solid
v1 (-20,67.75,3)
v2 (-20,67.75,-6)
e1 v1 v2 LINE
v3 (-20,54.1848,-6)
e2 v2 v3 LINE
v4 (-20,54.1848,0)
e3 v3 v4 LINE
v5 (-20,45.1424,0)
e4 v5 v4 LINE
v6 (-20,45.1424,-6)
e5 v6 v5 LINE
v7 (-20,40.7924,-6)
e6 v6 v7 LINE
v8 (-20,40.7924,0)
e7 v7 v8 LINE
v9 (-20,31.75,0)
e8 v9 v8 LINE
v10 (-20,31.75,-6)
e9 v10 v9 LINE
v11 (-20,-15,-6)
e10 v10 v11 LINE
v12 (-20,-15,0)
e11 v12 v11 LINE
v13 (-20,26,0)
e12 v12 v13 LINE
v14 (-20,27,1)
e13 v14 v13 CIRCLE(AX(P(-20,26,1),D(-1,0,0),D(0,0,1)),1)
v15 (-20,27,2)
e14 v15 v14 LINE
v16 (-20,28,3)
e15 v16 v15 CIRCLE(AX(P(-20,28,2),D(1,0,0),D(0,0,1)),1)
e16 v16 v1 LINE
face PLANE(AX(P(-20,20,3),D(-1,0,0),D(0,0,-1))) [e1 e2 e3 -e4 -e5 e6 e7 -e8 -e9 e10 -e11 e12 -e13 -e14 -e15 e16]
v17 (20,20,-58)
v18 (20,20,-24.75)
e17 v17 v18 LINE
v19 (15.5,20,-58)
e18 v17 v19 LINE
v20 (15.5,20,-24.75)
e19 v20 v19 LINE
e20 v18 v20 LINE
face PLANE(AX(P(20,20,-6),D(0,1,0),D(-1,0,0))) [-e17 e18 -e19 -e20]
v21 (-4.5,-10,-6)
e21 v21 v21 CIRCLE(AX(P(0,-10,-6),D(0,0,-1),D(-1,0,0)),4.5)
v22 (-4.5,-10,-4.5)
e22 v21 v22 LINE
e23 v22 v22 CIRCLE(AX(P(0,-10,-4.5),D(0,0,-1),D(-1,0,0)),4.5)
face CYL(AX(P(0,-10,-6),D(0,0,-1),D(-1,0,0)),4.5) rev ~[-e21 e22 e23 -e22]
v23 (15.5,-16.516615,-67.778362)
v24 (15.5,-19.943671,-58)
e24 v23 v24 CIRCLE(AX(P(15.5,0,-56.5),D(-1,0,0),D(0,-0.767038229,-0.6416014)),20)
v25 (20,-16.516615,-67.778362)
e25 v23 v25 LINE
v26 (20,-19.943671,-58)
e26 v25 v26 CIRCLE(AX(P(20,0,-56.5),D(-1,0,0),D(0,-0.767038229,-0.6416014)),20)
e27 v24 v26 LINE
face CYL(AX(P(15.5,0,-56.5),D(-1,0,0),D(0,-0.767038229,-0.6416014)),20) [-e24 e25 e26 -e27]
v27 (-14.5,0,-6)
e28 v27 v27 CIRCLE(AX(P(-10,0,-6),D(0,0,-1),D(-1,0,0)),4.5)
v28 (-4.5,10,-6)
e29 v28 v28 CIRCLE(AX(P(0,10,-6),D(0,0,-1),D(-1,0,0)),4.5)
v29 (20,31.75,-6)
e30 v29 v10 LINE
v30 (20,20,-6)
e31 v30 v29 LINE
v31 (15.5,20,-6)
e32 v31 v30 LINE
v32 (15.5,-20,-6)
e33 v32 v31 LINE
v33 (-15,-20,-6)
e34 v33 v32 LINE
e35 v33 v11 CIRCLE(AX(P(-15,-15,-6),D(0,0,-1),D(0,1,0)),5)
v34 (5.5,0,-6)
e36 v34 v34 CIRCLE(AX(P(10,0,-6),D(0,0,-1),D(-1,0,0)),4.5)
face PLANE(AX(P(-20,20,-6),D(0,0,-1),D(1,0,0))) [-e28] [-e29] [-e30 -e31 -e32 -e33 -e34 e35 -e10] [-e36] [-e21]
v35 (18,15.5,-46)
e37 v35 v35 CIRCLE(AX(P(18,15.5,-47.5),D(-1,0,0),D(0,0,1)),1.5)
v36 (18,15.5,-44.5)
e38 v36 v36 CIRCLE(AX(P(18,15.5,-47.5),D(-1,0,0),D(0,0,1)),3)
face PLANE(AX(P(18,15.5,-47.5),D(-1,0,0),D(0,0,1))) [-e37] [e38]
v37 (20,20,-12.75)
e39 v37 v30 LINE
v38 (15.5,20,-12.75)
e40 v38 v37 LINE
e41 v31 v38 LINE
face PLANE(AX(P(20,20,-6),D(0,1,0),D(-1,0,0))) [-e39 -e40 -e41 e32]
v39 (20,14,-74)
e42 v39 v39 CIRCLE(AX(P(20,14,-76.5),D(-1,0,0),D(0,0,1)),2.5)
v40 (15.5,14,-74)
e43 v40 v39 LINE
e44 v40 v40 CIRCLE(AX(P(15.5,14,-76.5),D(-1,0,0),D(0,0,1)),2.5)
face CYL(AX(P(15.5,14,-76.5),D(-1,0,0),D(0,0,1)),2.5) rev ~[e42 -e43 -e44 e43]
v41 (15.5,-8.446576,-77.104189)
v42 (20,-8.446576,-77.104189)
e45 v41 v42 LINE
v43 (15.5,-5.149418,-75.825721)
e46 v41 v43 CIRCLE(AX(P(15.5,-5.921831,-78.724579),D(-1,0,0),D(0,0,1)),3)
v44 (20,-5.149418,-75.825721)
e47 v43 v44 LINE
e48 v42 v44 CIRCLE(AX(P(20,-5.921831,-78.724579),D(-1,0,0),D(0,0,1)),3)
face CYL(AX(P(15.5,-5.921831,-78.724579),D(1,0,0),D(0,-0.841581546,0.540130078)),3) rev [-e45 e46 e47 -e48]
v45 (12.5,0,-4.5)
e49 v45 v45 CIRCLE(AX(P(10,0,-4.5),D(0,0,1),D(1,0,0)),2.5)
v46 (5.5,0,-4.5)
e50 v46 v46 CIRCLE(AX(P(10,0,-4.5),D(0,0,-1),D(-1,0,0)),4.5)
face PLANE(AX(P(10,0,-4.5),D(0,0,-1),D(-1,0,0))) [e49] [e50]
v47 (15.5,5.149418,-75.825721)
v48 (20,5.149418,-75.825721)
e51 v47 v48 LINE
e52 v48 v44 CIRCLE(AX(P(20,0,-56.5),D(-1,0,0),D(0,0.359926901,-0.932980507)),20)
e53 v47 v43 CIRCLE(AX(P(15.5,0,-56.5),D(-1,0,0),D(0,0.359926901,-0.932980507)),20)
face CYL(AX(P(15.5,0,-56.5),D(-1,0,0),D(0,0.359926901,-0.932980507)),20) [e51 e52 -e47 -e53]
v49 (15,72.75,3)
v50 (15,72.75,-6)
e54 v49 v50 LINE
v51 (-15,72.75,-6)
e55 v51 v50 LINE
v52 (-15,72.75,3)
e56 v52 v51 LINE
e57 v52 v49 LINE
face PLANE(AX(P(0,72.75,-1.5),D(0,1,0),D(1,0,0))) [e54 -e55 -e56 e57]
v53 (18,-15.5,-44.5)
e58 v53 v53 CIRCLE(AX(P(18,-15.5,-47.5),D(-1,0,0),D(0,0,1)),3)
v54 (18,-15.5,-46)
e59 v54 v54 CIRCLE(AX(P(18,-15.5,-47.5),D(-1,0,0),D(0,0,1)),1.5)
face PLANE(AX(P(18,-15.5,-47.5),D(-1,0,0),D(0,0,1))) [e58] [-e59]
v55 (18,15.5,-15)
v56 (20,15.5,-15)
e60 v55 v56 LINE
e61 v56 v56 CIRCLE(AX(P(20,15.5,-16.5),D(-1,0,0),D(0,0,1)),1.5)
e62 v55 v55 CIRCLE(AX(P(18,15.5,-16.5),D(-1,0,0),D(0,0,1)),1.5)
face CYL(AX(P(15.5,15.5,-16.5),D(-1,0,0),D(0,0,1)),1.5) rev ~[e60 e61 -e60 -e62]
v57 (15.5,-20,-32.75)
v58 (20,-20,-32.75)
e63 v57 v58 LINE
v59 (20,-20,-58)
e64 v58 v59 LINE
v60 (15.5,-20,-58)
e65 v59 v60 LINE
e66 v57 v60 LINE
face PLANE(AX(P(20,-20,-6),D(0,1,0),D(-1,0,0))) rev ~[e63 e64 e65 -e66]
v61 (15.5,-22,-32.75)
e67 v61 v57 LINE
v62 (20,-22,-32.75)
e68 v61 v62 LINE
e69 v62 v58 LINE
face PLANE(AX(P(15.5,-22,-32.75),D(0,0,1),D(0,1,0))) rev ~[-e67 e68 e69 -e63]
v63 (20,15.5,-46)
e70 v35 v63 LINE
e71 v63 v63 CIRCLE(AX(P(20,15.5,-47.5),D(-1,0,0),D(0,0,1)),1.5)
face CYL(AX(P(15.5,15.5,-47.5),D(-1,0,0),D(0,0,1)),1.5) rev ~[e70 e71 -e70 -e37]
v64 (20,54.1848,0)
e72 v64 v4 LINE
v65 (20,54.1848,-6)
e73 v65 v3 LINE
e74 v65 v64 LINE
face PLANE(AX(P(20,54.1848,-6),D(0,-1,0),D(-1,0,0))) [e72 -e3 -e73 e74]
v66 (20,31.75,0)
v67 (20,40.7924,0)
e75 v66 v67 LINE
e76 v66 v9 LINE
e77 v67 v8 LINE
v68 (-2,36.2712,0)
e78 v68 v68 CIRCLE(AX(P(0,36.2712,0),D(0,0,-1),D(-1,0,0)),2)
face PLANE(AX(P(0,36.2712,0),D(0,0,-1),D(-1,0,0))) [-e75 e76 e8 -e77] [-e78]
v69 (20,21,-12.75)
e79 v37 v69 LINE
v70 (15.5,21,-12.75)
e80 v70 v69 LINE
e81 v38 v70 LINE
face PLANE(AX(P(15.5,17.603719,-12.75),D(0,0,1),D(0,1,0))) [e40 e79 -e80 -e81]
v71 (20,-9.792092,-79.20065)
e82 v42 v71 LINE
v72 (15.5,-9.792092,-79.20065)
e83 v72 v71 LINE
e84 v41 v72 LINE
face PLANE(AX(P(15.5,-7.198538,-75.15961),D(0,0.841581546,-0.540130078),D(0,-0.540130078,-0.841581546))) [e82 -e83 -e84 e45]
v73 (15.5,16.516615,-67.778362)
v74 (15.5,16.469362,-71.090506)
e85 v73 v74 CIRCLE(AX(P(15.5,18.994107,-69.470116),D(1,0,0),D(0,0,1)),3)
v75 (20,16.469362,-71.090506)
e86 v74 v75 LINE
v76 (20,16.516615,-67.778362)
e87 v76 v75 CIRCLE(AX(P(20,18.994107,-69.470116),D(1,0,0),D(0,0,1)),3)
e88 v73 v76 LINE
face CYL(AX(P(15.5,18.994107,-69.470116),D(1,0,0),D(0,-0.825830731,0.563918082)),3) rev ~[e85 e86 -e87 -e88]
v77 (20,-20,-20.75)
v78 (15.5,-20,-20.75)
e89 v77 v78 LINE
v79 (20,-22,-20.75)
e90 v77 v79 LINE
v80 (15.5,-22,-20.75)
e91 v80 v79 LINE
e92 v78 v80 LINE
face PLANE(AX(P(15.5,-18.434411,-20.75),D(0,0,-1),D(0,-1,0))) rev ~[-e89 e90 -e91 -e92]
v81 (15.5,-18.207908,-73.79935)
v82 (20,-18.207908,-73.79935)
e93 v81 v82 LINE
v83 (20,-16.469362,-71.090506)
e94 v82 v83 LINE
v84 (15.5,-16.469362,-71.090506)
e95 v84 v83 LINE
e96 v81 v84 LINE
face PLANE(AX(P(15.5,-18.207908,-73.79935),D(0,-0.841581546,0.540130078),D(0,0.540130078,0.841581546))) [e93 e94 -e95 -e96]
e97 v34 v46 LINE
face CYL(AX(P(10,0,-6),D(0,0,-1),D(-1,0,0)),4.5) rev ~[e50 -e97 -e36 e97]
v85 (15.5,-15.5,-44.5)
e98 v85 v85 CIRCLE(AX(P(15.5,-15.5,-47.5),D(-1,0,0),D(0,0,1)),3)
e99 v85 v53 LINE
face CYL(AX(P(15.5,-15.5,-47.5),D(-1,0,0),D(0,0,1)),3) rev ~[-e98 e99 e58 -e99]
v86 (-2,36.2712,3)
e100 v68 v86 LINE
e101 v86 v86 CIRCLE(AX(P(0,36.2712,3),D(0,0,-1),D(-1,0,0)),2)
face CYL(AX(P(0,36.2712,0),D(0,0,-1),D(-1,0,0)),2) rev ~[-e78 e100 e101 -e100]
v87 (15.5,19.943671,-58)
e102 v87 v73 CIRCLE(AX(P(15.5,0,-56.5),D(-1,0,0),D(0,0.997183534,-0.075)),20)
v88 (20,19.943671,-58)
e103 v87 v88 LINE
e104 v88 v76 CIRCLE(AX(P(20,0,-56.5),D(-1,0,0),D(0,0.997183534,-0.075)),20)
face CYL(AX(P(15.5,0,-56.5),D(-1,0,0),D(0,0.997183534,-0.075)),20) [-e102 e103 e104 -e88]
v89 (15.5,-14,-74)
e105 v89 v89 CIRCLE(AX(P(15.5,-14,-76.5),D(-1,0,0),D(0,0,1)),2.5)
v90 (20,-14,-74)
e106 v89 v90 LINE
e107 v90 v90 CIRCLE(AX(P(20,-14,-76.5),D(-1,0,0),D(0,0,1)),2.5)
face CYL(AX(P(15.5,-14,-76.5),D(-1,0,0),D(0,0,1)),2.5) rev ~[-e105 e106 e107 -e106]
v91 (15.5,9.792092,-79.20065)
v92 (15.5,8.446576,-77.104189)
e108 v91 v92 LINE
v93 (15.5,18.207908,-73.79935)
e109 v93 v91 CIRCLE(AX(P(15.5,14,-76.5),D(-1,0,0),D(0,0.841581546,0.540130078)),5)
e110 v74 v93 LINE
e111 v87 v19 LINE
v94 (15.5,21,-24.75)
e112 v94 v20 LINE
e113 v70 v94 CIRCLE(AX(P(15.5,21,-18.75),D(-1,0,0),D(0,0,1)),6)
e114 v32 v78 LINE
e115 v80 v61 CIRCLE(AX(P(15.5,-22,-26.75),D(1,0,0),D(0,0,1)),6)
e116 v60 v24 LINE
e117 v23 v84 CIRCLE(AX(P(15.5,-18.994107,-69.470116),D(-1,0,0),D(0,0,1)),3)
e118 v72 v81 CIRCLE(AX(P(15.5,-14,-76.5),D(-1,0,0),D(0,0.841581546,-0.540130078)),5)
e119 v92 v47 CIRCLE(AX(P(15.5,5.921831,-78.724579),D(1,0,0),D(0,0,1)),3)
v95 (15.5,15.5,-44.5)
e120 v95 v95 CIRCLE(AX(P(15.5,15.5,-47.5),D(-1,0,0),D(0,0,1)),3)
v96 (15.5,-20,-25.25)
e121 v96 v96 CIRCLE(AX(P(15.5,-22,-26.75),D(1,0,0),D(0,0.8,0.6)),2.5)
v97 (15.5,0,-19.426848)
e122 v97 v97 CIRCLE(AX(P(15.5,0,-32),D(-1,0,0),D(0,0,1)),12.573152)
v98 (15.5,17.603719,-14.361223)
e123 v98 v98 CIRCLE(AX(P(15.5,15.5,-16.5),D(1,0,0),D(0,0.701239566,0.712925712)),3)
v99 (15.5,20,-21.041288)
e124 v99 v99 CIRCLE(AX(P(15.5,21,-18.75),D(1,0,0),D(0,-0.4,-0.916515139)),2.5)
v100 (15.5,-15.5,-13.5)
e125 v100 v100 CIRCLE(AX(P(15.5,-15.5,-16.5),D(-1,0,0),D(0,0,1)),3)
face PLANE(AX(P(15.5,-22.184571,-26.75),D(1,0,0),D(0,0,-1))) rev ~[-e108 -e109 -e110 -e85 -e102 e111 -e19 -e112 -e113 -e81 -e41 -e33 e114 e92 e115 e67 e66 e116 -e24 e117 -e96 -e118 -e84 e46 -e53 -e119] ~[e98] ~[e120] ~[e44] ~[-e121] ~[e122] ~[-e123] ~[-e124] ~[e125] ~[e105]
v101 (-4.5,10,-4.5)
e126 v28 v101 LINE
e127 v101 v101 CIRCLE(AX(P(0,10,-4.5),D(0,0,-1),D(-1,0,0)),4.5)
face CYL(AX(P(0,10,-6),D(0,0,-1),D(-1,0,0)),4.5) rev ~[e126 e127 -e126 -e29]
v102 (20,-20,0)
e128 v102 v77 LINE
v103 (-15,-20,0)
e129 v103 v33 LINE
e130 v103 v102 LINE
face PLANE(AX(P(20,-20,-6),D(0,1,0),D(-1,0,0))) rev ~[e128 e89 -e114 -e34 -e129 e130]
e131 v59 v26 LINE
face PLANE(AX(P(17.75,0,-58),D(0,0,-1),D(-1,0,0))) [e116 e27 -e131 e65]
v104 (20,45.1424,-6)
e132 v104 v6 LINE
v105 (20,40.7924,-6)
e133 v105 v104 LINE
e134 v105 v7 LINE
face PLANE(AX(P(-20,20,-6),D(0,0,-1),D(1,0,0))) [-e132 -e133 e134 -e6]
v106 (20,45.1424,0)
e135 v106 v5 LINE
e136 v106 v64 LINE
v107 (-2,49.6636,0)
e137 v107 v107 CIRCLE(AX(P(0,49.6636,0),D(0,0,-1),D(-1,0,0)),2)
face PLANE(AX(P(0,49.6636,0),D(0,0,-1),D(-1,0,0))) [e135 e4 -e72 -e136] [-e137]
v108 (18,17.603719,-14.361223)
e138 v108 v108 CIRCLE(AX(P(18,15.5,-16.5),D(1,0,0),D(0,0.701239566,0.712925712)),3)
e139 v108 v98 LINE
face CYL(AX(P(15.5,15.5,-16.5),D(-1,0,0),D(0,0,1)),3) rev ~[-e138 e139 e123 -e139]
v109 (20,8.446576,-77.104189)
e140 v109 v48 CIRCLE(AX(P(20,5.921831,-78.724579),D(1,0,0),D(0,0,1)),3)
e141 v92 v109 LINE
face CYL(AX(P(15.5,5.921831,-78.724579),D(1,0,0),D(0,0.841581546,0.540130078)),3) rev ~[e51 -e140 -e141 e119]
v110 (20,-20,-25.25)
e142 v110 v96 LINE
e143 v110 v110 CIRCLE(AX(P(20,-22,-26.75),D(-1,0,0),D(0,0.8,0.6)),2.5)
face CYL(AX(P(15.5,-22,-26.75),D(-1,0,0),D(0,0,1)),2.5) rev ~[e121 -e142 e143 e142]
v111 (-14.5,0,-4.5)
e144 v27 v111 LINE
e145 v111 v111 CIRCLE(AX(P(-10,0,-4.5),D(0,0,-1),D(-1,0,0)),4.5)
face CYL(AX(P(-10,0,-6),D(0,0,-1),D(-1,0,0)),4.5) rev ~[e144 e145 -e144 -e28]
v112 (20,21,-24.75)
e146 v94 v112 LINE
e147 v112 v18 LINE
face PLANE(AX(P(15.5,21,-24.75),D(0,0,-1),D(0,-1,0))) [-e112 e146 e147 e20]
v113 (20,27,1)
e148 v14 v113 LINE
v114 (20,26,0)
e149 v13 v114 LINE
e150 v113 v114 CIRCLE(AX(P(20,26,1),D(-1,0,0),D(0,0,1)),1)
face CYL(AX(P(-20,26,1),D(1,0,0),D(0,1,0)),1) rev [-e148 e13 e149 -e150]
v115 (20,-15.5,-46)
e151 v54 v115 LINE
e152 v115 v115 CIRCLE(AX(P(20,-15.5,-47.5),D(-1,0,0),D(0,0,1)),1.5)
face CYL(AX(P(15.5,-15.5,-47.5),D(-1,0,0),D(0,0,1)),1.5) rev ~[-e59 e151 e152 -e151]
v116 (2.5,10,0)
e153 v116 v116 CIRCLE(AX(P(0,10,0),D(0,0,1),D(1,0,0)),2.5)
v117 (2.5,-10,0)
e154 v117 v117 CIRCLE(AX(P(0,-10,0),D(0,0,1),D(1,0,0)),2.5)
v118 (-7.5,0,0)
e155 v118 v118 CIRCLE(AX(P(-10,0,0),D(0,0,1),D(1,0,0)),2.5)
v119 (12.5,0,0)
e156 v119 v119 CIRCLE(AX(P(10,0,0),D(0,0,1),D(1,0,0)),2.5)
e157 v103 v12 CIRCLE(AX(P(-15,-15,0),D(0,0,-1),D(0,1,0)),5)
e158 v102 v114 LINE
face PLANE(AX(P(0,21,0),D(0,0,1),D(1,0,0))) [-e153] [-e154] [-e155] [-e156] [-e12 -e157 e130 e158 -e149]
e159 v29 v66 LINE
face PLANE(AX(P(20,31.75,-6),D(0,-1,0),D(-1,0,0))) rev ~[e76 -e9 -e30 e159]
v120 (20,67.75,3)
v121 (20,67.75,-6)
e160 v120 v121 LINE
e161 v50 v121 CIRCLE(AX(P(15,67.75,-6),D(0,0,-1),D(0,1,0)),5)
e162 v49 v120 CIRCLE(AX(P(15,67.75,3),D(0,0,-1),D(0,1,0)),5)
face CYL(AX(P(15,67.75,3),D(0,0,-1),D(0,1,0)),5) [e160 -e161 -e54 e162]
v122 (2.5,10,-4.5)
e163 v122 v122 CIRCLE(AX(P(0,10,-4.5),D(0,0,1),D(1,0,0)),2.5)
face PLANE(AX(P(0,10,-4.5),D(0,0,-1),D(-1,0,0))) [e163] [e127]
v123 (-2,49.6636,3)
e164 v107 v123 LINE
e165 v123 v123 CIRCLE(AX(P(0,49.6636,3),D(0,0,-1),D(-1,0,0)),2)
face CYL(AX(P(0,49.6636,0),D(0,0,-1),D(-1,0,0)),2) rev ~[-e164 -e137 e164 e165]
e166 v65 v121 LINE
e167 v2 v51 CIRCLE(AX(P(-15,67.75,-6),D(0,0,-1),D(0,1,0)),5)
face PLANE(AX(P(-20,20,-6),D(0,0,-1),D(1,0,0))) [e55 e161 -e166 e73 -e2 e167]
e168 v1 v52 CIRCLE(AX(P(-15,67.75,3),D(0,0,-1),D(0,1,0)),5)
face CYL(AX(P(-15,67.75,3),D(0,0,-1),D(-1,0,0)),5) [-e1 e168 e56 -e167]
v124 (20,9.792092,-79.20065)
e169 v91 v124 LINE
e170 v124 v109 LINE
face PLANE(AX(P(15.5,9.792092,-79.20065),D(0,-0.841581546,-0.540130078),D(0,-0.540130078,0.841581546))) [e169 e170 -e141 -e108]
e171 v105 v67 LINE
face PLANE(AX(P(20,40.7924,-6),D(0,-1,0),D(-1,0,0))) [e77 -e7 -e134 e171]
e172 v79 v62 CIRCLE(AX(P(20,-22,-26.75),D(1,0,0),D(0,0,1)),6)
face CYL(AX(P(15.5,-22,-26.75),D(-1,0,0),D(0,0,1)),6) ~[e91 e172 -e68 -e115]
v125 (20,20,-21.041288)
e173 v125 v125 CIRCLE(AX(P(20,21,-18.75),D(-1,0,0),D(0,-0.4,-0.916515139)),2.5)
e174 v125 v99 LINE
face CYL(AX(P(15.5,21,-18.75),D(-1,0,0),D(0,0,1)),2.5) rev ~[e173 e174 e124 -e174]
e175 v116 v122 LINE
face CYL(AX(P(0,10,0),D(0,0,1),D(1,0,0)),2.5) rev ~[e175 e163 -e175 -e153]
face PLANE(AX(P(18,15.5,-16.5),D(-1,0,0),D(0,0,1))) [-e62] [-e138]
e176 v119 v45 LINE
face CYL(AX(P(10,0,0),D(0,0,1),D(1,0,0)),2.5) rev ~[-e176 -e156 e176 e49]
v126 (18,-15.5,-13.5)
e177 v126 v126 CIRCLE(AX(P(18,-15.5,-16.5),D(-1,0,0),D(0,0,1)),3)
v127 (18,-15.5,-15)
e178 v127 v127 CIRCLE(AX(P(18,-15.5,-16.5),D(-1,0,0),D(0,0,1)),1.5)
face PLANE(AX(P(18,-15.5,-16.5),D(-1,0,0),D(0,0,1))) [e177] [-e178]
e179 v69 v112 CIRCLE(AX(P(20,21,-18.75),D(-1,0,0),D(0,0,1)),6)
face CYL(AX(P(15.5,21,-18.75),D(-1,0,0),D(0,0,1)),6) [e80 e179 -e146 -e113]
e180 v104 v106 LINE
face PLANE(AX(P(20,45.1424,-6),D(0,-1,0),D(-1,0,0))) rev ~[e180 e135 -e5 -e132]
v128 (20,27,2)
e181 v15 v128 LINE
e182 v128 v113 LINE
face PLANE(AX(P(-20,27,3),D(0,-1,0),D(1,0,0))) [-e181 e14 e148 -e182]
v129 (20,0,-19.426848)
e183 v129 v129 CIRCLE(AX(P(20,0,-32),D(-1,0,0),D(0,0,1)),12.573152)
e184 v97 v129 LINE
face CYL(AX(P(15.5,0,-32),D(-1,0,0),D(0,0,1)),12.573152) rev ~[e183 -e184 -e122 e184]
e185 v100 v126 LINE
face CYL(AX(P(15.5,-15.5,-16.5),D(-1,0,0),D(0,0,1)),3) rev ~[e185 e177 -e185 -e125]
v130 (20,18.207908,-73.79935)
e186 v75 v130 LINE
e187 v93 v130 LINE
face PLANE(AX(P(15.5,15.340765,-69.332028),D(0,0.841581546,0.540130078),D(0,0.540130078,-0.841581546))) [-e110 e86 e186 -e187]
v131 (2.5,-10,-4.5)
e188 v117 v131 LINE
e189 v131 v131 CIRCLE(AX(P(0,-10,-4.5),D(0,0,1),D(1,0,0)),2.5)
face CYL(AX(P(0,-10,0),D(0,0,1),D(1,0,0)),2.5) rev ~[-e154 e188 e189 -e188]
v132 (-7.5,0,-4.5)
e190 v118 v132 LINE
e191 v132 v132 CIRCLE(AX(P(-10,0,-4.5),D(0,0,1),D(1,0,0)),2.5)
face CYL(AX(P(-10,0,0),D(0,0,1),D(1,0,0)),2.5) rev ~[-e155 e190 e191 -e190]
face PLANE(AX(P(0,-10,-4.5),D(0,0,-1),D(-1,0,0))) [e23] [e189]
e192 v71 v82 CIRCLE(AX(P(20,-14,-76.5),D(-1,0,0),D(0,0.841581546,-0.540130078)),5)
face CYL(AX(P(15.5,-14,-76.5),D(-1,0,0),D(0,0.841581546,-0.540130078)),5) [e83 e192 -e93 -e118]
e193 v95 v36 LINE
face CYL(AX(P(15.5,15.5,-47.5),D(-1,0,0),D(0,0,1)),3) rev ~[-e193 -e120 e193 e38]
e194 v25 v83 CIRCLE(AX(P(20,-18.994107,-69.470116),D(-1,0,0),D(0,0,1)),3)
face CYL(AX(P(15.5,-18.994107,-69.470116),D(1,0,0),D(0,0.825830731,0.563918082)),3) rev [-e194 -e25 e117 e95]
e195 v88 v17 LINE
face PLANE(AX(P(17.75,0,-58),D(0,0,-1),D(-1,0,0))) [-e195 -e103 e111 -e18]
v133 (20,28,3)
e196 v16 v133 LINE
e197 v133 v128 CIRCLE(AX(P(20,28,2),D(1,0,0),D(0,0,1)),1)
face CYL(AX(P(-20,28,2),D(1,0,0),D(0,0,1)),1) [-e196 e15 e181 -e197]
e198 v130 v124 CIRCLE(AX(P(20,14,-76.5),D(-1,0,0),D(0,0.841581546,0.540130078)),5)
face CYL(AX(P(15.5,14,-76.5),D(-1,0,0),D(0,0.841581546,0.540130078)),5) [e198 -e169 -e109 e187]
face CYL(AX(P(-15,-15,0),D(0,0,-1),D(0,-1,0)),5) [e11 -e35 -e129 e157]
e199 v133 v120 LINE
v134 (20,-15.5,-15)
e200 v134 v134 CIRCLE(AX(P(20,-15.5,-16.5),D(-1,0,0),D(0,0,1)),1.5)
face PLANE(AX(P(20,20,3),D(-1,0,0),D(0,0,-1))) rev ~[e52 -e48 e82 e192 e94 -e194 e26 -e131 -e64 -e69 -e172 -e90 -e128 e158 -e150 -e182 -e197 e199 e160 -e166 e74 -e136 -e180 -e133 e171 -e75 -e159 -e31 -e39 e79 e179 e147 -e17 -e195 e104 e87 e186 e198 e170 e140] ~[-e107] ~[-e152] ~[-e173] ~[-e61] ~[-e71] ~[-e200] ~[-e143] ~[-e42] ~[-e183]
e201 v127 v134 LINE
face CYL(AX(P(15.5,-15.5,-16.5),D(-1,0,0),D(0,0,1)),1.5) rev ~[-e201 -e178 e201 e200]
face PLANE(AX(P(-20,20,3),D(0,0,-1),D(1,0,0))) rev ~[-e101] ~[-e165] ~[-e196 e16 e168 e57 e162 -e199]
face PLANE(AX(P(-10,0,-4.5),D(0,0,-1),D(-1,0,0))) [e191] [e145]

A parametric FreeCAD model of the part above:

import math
import FreeCAD as App
import Part
import Sketcher
from FreeCAD import Vector
Q = App.Units.Quantity


def edges_at(feature, points):
    """Names of the edges that pass closest to the given points."""
    edges = feature.Shape.Edges
    near = lambda p: min(range(len(edges)), key=lambda i: edges[i].distToShape(Part.Vertex(*p))[0])
    return sorted({f"Edge{near(p) + 1}" for p in points})

doc = App.newDocument("Part")
params = doc.addObject("Spreadsheet::Sheet", "Params")
for row, (alias, value) in enumerate([
    ("sketch1_diameter", "5 mm"),
    ("sketch1_width", "40 mm"),
    ("pad1_length", "6 mm"),
    ("sketch2_height", "40 mm"),
    ("sketch2_width", "4.5 mm"),
    ("pad2_length", "52 mm"),
    ("sketch4_diameter", "3 mm"),
    ("sketch5_diameter", "3 mm"),
    ("sketch6_diameter", "3 mm"),
    ("sketch7_diameter", "3 mm"),
    ("sketch8_diameter", "9 mm"),
    ("pocket6_length", "1.5 mm"),
    ("sketch9_diameter", "6 mm"),
    ("pocket7_length", "2.5 mm"),
    ("fillet_radius", "5 mm"),
    ("sketch10_diameter", "5 mm"),
    ("sketch10_radius", "20 mm"),
    ("sketch10_radius2", "5 mm"),
    ("pad3_length", "4.5 mm"),
    ("fillet2_radius", "3 mm"),
    ("sketch11_diameter", "5 mm"),
    ("sketch11_radius", "6 mm"),
    ("pad4_length", "4.5 mm"),
    ("sketch12_diameter", "5 mm"),
    ("pocket8_length", "4.5 mm"),
    ("sketch13_diameter", "6 mm"),
    ("pocket9_length", "2.5 mm"),
    ("sketch14_width", "40 mm"),
    ("sketch14_height", "9 mm"),
    ("pad5_length", "52.75 mm"),
    ("sketch15_width", "40 mm"),
    ("sketch15_height", "2 mm"),
    ("pocket10_length", "3 mm"),
    ("sketch16_width", "40 mm"),
    ("sketch16_height", "5 mm"),
    ("pocket11_length", "3 mm"),
    ("fillet3_radius", "1 mm"),
    ("fillet4_radius", "5 mm"),
    ("sketch17_width", "40 mm"),
    ("pocket12_length", "6 mm"),
    ("sketch18_diameter", "4 mm"),
], start=1):
    params.set(f"A{row}", alias)
    params.set(f"B{row}", "=" + value)
    params.setAlias(f"B{row}", alias)

body = doc.addObject("PartDesign::Body", "Body")

# Sketch on XY plane
sketch1 = doc.addObject("Sketcher::SketchObject", "Sketch")
body.addObject(sketch1)
sketch1.AttachmentSupport = (doc.XY_Plane, [""])
sketch1.MapMode = "FlatFace"
sketch1.addGeometry([
    Part.LineSegment(Vector(-20, 20, 0), Vector(-20, -20, 0)),  # 0
    Part.LineSegment(Vector(-20, -20, 0), Vector(20, -20, 0)),  # 1
    Part.LineSegment(Vector(20, -20, 0), Vector(20, 20, 0)),  # 2
    Part.LineSegment(Vector(20, 20, 0), Vector(-20, 20, 0)),  # 3
    Part.Circle(Vector(0, -10, 0), Vector(0, 0, 1), 2.5),  # 4
    Part.Circle(Vector(-10, 0, 0), Vector(0, 0, 1), 2.5),  # 5
    Part.Circle(Vector(10, 0, 0), Vector(0, 0, 1), 2.5),  # 6
    Part.Circle(Vector(0, 10, 0), Vector(0, 0, 1), 2.5),  # 7
], False)
sketch1.addConstraint([
    Sketcher.Constraint("Coincident", 0, 2, 1, 1),
    Sketcher.Constraint("Coincident", 1, 2, 2, 1),
    Sketcher.Constraint("Coincident", 2, 2, 3, 1),
    Sketcher.Constraint("Coincident", 3, 2, 0, 1),
    Sketcher.Constraint("Vertical", 0),
    Sketcher.Constraint("Horizontal", 1),
    Sketcher.Constraint("Vertical", 2),
    Sketcher.Constraint("Horizontal", 3),
    Sketcher.Constraint("Equal", 4, 5),
    Sketcher.Constraint("Equal", 5, 6),
    Sketcher.Constraint("Equal", 6, 7),
    Sketcher.Constraint("Symmetric", 5, 3, 6, 3, -1, 1),
    Sketcher.Constraint("Symmetric", 4, 3, 7, 3, -1, 1),
    Sketcher.Constraint("Symmetric", 0, 2, 2, 2, -1, 1),
    Sketcher.Constraint("PointOnObject", 4, 3, -2),
    Sketcher.Constraint("PointOnObject", 5, 3, -1),
    Sketcher.Constraint("Equal", 3, 0),
    Sketcher.Constraint("Diameter", 4, Q("5 mm")),
    Sketcher.Constraint("DistanceX", 1, 1, 1, 2, Q("40 mm")),
    Sketcher.Constraint("DistanceY", 4, 3, -1, 1, Q("10 mm")),
    Sketcher.Constraint("DistanceX", 5, 3, -1, 1, Q("10 mm")),
])
sketch1.setExpression("Constraints[17]", "Params.sketch1_diameter")
sketch1.setExpression("Constraints[18]", "Params.sketch1_width")
pad1 = doc.addObject("PartDesign::Pad", "Pad")
body.addObject(pad1)
pad1.Profile = sketch1
pad1.setExpression("Length", "Params.pad1_length")
pad1.Reversed = True

# Sketch on XY plane
sketch2 = doc.addObject("Sketcher::SketchObject", "Sketch001")
body.addObject(sketch2)
sketch2.AttachmentSupport = (doc.XY_Plane, [""])
sketch2.MapMode = "FlatFace"
sketch2.AttachmentOffset = App.Placement(Vector(0, 0, -6), App.Rotation())
sketch2.addGeometry([
    Part.LineSegment(Vector(20, 20, 0), Vector(20, -20, 0)),
    Part.LineSegment(Vector(20, -20, 0), Vector(15.5, -20, 0)),
    Part.LineSegment(Vector(15.5, -20, 0), Vector(15.5, 20, 0)),
    Part.LineSegment(Vector(15.5, 20, 0), Vector(20, 20, 0)),
], False)
sketch2.addConstraint([
    Sketcher.Constraint("Coincident", 0, 2, 1, 1),
    Sketcher.Constraint("Coincident", 1, 2, 2, 1),
    Sketcher.Constraint("Coincident", 2, 2, 3, 1),
    Sketcher.Constraint("Coincident", 3, 2, 0, 1),
    Sketcher.Constraint("Vertical", 0),
    Sketcher.Constraint("Horizontal", 1),
    Sketcher.Constraint("Vertical", 2),
    Sketcher.Constraint("Horizontal", 3),
    Sketcher.Constraint("DistanceY", 0, 2, 0, 1, Q("40 mm")),
    Sketcher.Constraint("DistanceX", 1, 2, 1, 1, Q("4.5 mm")),
    Sketcher.Constraint("DistanceX", -1, 1, 0, 2, Q("20 mm")),
    Sketcher.Constraint("DistanceY", 0, 2, -1, 1, Q("20 mm")),
])
sketch2.setExpression("Constraints[8]", "Params.sketch2_height")
sketch2.setExpression("Constraints[9]", "Params.sketch2_width")
pad2 = doc.addObject("PartDesign::Pad", "Pad001")
body.addObject(pad2)
pad2.Profile = sketch2
pad2.setExpression("Length", "Params.pad2_length")
pad2.Reversed = True

# Sketch on YZ plane
sketch3 = doc.addObject("Sketcher::SketchObject", "Sketch002")
body.addObject(sketch3)
sketch3.AttachmentSupport = (doc.YZ_Plane, [""])
sketch3.MapMode = "FlatFace"
sketch3.AttachmentOffset = App.Placement(Vector(0, 0, 15.5), App.Rotation())
sketch3.addGeometry(Part.Circle(Vector(0, -32, 0), Vector(0, 0, 1), 13), False)
sketch3.addConstraint([
    Sketcher.Constraint("PointOnObject", 0, 3, -2),
    Sketcher.Constraint("DistanceY", 0, 3, -1, 1, Q("32 mm")),
    Sketcher.Constraint("Diameter", 0, Q("25.146303 mm")),
])
pocket1 = doc.addObject("PartDesign::Pocket", "Pocket")
body.addObject(pocket1)
pocket1.Profile = sketch3
pocket1.Type = "UpToFirst"
pocket1.Reversed = True

# Sketch on YZ plane
sketch4 = doc.addObject("Sketcher::SketchObject", "Sketch003")
body.addObject(sketch4)
sketch4.AttachmentSupport = (doc.YZ_Plane, [""])
sketch4.MapMode = "FlatFace"
sketch4.AttachmentOffset = App.Placement(Vector(0, 0, 15.5), App.Rotation())
sketch4.addGeometry(Part.Circle(Vector(15.5, -16.5, 0), Vector(0, 0, 1), 1.5), False)
sketch4.addConstraint([
    Sketcher.Constraint("Diameter", 0, Q("3 mm")),
    Sketcher.Constraint("DistanceX", -1, 1, 0, 3, Q("15.5 mm")),
    Sketcher.Constraint("DistanceY", 0, 3, -1, 1, Q("16.5 mm")),
])
sketch4.setExpression("Constraints[0]", "Params.sketch4_diameter")
pocket2 = doc.addObject("PartDesign::Pocket", "Pocket001")
body.addObject(pocket2)
pocket2.Profile = sketch4
pocket2.Type = "UpToFirst"
pocket2.Reversed = True

# Sketch on YZ plane
sketch5 = doc.addObject("Sketcher::SketchObject", "Sketch004")
body.addObject(sketch5)
sketch5.AttachmentSupport = (doc.YZ_Plane, [""])
sketch5.MapMode = "FlatFace"
sketch5.AttachmentOffset = App.Placement(Vector(0, 0, 15.5), App.Rotation())
sketch5.addGeometry(Part.Circle(Vector(-15.5, -16.5, 0), Vector(0, 0, 1), 1.5), False)
sketch5.addConstraint([
    Sketcher.Constraint("Diameter", 0, Q("3 mm")),
    Sketcher.Constraint("DistanceX", 0, 3, -1, 1, Q("15.5 mm")),
    Sketcher.Constraint("DistanceY", 0, 3, -1, 1, Q("16.5 mm")),
])
sketch5.setExpression("Constraints[0]", "Params.sketch5_diameter")
pocket3 = doc.addObject("PartDesign::Pocket", "Pocket002")
body.addObject(pocket3)
pocket3.Profile = sketch5
pocket3.Type = "UpToFirst"
pocket3.Reversed = True

# Sketch on YZ plane
sketch6 = doc.addObject("Sketcher::SketchObject", "Sketch005")
body.addObject(sketch6)
sketch6.AttachmentSupport = (doc.YZ_Plane, [""])
sketch6.MapMode = "FlatFace"
sketch6.AttachmentOffset = App.Placement(Vector(0, 0, 15.5), App.Rotation())
sketch6.addGeometry(Part.Circle(Vector(-15.5, -47.5, 0), Vector(0, 0, 1), 1.5), False)
sketch6.addConstraint([
    Sketcher.Constraint("Diameter", 0, Q("3 mm")),
    Sketcher.Constraint("DistanceX", 0, 3, -1, 1, Q("15.5 mm")),
    Sketcher.Constraint("DistanceY", 0, 3, -1, 1, Q("47.5 mm")),
])
sketch6.setExpression("Constraints[0]", "Params.sketch6_diameter")
pocket4 = doc.addObject("PartDesign::Pocket", "Pocket003")
body.addObject(pocket4)
pocket4.Profile = sketch6
pocket4.Type = "UpToFirst"
pocket4.Reversed = True

# Sketch on YZ plane
sketch7 = doc.addObject("Sketcher::SketchObject", "Sketch006")
body.addObject(sketch7)
sketch7.AttachmentSupport = (doc.YZ_Plane, [""])
sketch7.MapMode = "FlatFace"
sketch7.AttachmentOffset = App.Placement(Vector(0, 0, 15.5), App.Rotation())
sketch7.addGeometry(Part.Circle(Vector(15.5, -47.5, 0), Vector(0, 0, 1), 1.5), False)
sketch7.addConstraint([
    Sketcher.Constraint("Diameter", 0, Q("3 mm")),
    Sketcher.Constraint("DistanceX", -1, 1, 0, 3, Q("15.5 mm")),
    Sketcher.Constraint("DistanceY", 0, 3, -1, 1, Q("47.5 mm")),
])
sketch7.setExpression("Constraints[0]", "Params.sketch7_diameter")
pocket5 = doc.addObject("PartDesign::Pocket", "Pocket004")
body.addObject(pocket5)
pocket5.Profile = sketch7
pocket5.Type = "UpToFirst"
pocket5.Reversed = True

# Sketch on XY plane
sketch8 = doc.addObject("Sketcher::SketchObject", "Sketch007")
body.addObject(sketch8)
sketch8.AttachmentSupport = (doc.XY_Plane, [""])
sketch8.MapMode = "FlatFace"
sketch8.AttachmentOffset = App.Placement(Vector(0, 0, -6), App.Rotation())
sketch8.addGeometry([
    Part.Circle(Vector(0, 10, 0), Vector(0, 0, 1), 4.5),
    Part.Circle(Vector(-10, 0, 0), Vector(0, 0, 1), 4.5),
    Part.Circle(Vector(0, -10, 0), Vector(0, 0, 1), 4.5),
    Part.Circle(Vector(10, 0, 0), Vector(0, 0, 1), 4.5),
], False)
sketch8.addConstraint([
    Sketcher.Constraint("Equal", 0, 1),
    Sketcher.Constraint("Equal", 1, 2),
    Sketcher.Constraint("Equal", 2, 3),
    Sketcher.Constraint("Symmetric", 0, 3, 2, 3, -1, 1),
    Sketcher.Constraint("Symmetric", 1, 3, 3, 3, -1, 1),
    Sketcher.Constraint("PointOnObject", 0, 3, -2),
    Sketcher.Constraint("PointOnObject", 1, 3, -1),
    Sketcher.Constraint("Diameter", 0, Q("9 mm")),
    Sketcher.Constraint("DistanceY", -1, 1, 0, 3, Q("10 mm")),
    Sketcher.Constraint("DistanceX", 1, 3, -1, 1, Q("10 mm")),
])
sketch8.setExpression("Constraints[7]", "Params.sketch8_diameter")
pocket6 = doc.addObject("PartDesign::Pocket", "Pocket005")
body.addObject(pocket6)
pocket6.Profile = sketch8
pocket6.setExpression("Length", "Params.pocket6_length")
pocket6.Reversed = True

# Sketch on YZ plane
sketch9 = doc.addObject("Sketcher::SketchObject", "Sketch008")
body.addObject(sketch9)
sketch9.AttachmentSupport = (doc.YZ_Plane, [""])
sketch9.MapMode = "FlatFace"
sketch9.AttachmentOffset = App.Placement(Vector(0, 0, 15.5), App.Rotation())
sketch9.addGeometry([
    Part.Circle(Vector(15.5, -16.5, 0), Vector(0, 0, 1), 3),
    Part.Circle(Vector(15.5, -47.5, 0), Vector(0, 0, 1), 3),
    Part.Circle(Vector(-15.5, -47.5, 0), Vector(0, 0, 1), 3),
    Part.Circle(Vector(-15.5, -16.5, 0), Vector(0, 0, 1), 3),
], False)
sketch9.addConstraint([
    Sketcher.Constraint("Equal", 0, 1),
    Sketcher.Constraint("Equal", 1, 2),
    Sketcher.Constraint("Equal", 2, 3),
    Sketcher.Constraint("Symmetric", 1, 3, 2, 3, -2),
    Sketcher.Constraint("Symmetric", 0, 3, 3, 3, -2),
    Sketcher.Constraint("Vertical", 0, 3, 1, 3),
    Sketcher.Constraint("Diameter", 0, Q("6 mm")),
    Sketcher.Constraint("DistanceY", 1, 3, 0, 3, Q("31 mm")),
    Sketcher.Constraint("DistanceX", 2, 3, 1, 3, Q("31 mm")),
    Sketcher.Constraint("DistanceY", 0, 3, -1, 1, Q("16.5 mm")),
])
sketch9.setExpression("Constraints[6]", "Params.sketch9_diameter")
pocket7 = doc.addObject("PartDesign::Pocket", "Pocket006")
body.addObject(pocket7)
pocket7.Profile = sketch9
pocket7.setExpression("Length", "Params.pocket7_length")
pocket7.Reversed = True
doc.recompute()

fillet = doc.addObject("PartDesign::Fillet", "Fillet")
body.addObject(fillet)
fillet.Base = (pocket7, edges_at(pocket7, [(-20, -20, -3)]))
fillet.setExpression("Radius", "Params.fillet_radius")

# Sketch on YZ plane
sketch10 = doc.addObject("Sketcher::SketchObject", "Sketch009")
body.addObject(sketch10)
sketch10.AttachmentSupport = (doc.YZ_Plane, [""])
sketch10.MapMode = "FlatFace"
sketch10.AttachmentOffset = App.Placement(Vector(0, 0, 15.5), App.Rotation())
sketch10.addGeometry([
    Part.LineSegment(Vector(-19.9, -58, 0), Vector(19.9, -58, 0)),  # 0
    Part.ArcOfCircle(Part.Circle(Vector(0, -56.5, 0), Vector(0, 0, 1), 20), math.radians(-40), math.radians(-4)),  # 1
    Part.LineSegment(Vector(15.3, -69.3, 0), Vector(18.2, -73.8, 0)),  # 2
    Part.ArcOfCircle(Part.Circle(Vector(14, -76.5, 0), Vector(0, 0, 1), 5), math.radians(-147), math.radians(33)),  # 3
    Part.LineSegment(Vector(9.8, -79.2, 0), Vector(7.2, -75.2, 0)),  # 4
    Part.ArcOfCircle(Part.Circle(Vector(0, -56.5, 0), Vector(0, 0, 1), 20), math.radians(-111), math.radians(-69)),  # 5
    Part.LineSegment(Vector(-7.2, -75.2, 0), Vector(-9.8, -79.2, 0)),  # 6
    Part.ArcOfCircle(Part.Circle(Vector(-14, -76.5, 0), Vector(0, 0, 1), 5), math.radians(147), math.radians(327)),  # 7
    Part.LineSegment(Vector(-18.2, -73.8, 0), Vector(-15.3, -69.3, 0)),  # 8
    Part.ArcOfCircle(Part.Circle(Vector(0, -56.5, 0), Vector(0, 0, 1), 20), math.radians(-176), math.radians(-140)),  # 9
    Part.Circle(Vector(-14, -76.5, 0), Vector(0, 0, 1), 2.5),  # 10
    Part.Circle(Vector(14, -76.5, 0), Vector(0, 0, 1), 2.5),  # 11
], False)
sketch10.addConstraint([
    Sketcher.Constraint("Coincident", 0, 2, 1, 2),
    Sketcher.Constraint("Coincident", 1, 1, 2, 1),
    Sketcher.Constraint("Tangent", 2, 2, 3, 2),
    Sketcher.Constraint("Tangent", 3, 1, 4, 1),
    Sketcher.Constraint("Coincident", 4, 2, 5, 2),
    Sketcher.Constraint("Coincident", 5, 1, 6, 1),
    Sketcher.Constraint("Tangent", 6, 2, 7, 2),
    Sketcher.Constraint("Tangent", 7, 1, 8, 1),
    Sketcher.Constraint("Coincident", 8, 2, 9, 2),
    Sketcher.Constraint("Coincident", 9, 1, 0, 1),
    Sketcher.Constraint("Horizontal", 0),
    Sketcher.Constraint("Coincident", 5, 3, 1, 3),
    Sketcher.Constraint("Coincident", 9, 3, 1, 3),
    Sketcher.Constraint("Coincident", 10, 3, 7, 3),
    Sketcher.Constraint("Coincident", 11, 3, 3, 3),
    Sketcher.Constraint("Equal", 1, 5),
    Sketcher.Constraint("Equal", 3, 7),
    Sketcher.Constraint("Equal", 5, 9),
    Sketcher.Constraint("Equal", 10, 11),
    Sketcher.Constraint("Symmetric", 3, 3, 7, 3, -2),
    Sketcher.Constraint("Symmetric", 4, 2, 5, 1, -2),
    Sketcher.Constraint("Parallel", 2, 4),
    Sketcher.Constraint("Parallel", 6, 8),
    Sketcher.Constraint("Diameter", 10, Q("5 mm")),
    Sketcher.Constraint("Radius", 1, Q("20 mm")),
    Sketcher.Constraint("Radius", 3, Q("5 mm")),
    Sketcher.Constraint("DistanceX", -1, 1, 3, 3, Q("14 mm")),
    Sketcher.Constraint("DistanceY", 0, 2, -1, 1, Q("58 mm")),
    Sketcher.Constraint("DistanceY", 3, 3, 1, 3, Q("20 mm")),
    Sketcher.Constraint("DistanceY", 1, 3, -1, 1, Q("56.5 mm")),
    Sketcher.Constraint("DistanceY", 3, 1, 2, 2, Q("5.401301 mm")),
])
sketch10.setExpression("Constraints[23]", "Params.sketch10_diameter")
sketch10.setExpression("Constraints[24]", "Params.sketch10_radius")
sketch10.setExpression("Constraints[25]", "Params.sketch10_radius2")
pad3 = doc.addObject("PartDesign::Pad", "Pad002")
body.addObject(pad3)
pad3.Profile = sketch10
pad3.setExpression("Length", "Params.pad3_length")
doc.recompute()

fillet2 = doc.addObject("PartDesign::Fillet", "Fillet001")
body.addObject(fillet2)
fillet2.Base = (pad3, edges_at(pad3, [
    (17.75, -15.341, -69.332),
    (17.75, -7.199, -75.16),
    (17.75, 7.199, -75.16),
    (17.75, 15.341, -69.332),
]))
fillet2.setExpression("Radius", "Params.fillet2_radius")

# Sketch on YZ plane
sketch11 = doc.addObject("Sketcher::SketchObject", "Sketch010")
body.addObject(sketch11)
sketch11.AttachmentSupport = (doc.YZ_Plane, [""])
sketch11.MapMode = "FlatFace"
sketch11.AttachmentOffset = App.Placement(Vector(0, 0, 15.5), App.Rotation())
sketch11.addGeometry([
    Part.LineSegment(Vector(-18.4, -32.8, 0), Vector(-22, -32.8, 0)),  # 0
    Part.ArcOfCircle(Part.Circle(Vector(-22, -26.8, 0), Vector(0, 0, 1), 6), math.radians(90), math.radians(270)),  # 1
    Part.LineSegment(Vector(-22, -20.8, 0), Vector(-18.4, -20.8, 0)),  # 2
    Part.LineSegment(Vector(-18.4, -20.8, 0), Vector(-18.4, -32.8, 0)),  # 3
    Part.Circle(Vector(-22, -26.8, 0), Vector(0, 0, 1), 2.5),  # 4
    Part.LineSegment(Vector(21, -24.8, 0), Vector(17.6, -24.8, 0)),  # 5
    Part.LineSegment(Vector(17.6, -24.8, 0), Vector(17.6, -12.8, 0)),  # 6
    Part.LineSegment(Vector(17.6, -12.8, 0), Vector(21, -12.8, 0)),  # 7
    Part.ArcOfCircle(Part.Circle(Vector(21, -18.8, 0), Vector(0, 0, 1), 6), math.radians(-90), math.radians(90)),  # 8
    Part.Circle(Vector(21, -18.8, 0), Vector(0, 0, 1), 2.5),  # 9
], False)
sketch11.addConstraint([
    Sketcher.Constraint("Tangent", 0, 2, 1, 2),
    Sketcher.Constraint("Tangent", 1, 1, 2, 1),
    Sketcher.Constraint("Coincident", 2, 2, 3, 1),
    Sketcher.Constraint("Coincident", 3, 2, 0, 1),
    Sketcher.Constraint("Coincident", 5, 2, 6, 1),
    Sketcher.Constraint("Coincident", 6, 2, 7, 1),
    Sketcher.Constraint("Tangent", 7, 2, 8, 2),
    Sketcher.Constraint("Tangent", 8, 1, 5, 1),
    Sketcher.Constraint("Horizontal", 0),
    Sketcher.Constraint("Horizontal", 2),
    Sketcher.Constraint("Vertical", 3),
    Sketcher.Constraint("Horizontal", 5),
    Sketcher.Constraint("Vertical", 6),
    Sketcher.Constraint("Horizontal", 7),
    Sketcher.Constraint("Coincident", 4, 3, 1, 3),
    Sketcher.Constraint("Coincident", 9, 3, 8, 3),
    Sketcher.Constraint("Equal", 1, 8),
    Sketcher.Constraint("Equal", 4, 9),
    Sketcher.Constraint("Diameter", 4, Q("5 mm")),
    Sketcher.Constraint("Radius", 1, Q("6 mm")),
    Sketcher.Constraint("DistanceX", 1, 3, -1, 1, Q("22 mm")),
    Sketcher.Constraint("DistanceX", -1, 1, 8, 3, Q("21 mm")),
    Sketcher.Constraint("DistanceY", 1, 3, 8, 3, Q("8 mm")),
    Sketcher.Constraint("DistanceY", 1, 3, -1, 1, Q("26.75 mm")),
    Sketcher.Constraint("DistanceX", 0, 2, 0, 1, Q("3.565589 mm")),
    Sketcher.Constraint("DistanceX", 5, 2, 5, 1, Q("3.396281 mm")),
])
sketch11.setExpression("Constraints[18]", "Params.sketch11_diameter")
sketch11.setExpression("Constraints[19]", "Params.sketch11_radius")
pad4 = doc.addObject("PartDesign::Pad", "Pad003")
body.addObject(pad4)
pad4.Profile = sketch11
pad4.setExpression("Length", "Params.pad4_length")

# Sketch on YZ plane
sketch12 = doc.addObject("Sketcher::SketchObject", "Sketch011")
body.addObject(sketch12)
sketch12.AttachmentSupport = (doc.YZ_Plane, [""])
sketch12.MapMode = "FlatFace"
sketch12.AttachmentOffset = App.Placement(Vector(0, 0, 15.5), App.Rotation())
sketch12.addGeometry([
    Part.Circle(Vector(21, -18.8, 0), Vector(0, 0, 1), 2.5),
    Part.Circle(Vector(-22, -26.8, 0), Vector(0, 0, 1), 2.5),
], False)
sketch12.addConstraint([
    Sketcher.Constraint("Equal", 0, 1),
    Sketcher.Constraint("Diameter", 0, Q("5 mm")),
    Sketcher.Constraint("DistanceX", -1, 1, 0, 3, Q("21 mm")),
    Sketcher.Constraint("DistanceX", 1, 3, -1, 1, Q("22 mm")),
    Sketcher.Constraint("DistanceY", 1, 3, 0, 3, Q("8 mm")),
    Sketcher.Constraint("DistanceY", 0, 3, -1, 1, Q("18.75 mm")),
])
sketch12.setExpression("Constraints[1]", "Params.sketch12_diameter")
pocket8 = doc.addObject("PartDesign::Pocket", "Pocket007")
body.addObject(pocket8)
pocket8.Profile = sketch12
pocket8.setExpression("Length", "Params.pocket8_length")
pocket8.Reversed = True

# Sketch on YZ plane
sketch13 = doc.addObject("Sketcher::SketchObject", "Sketch012")
body.addObject(sketch13)
sketch13.AttachmentSupport = (doc.YZ_Plane, [""])
sketch13.MapMode = "FlatFace"
sketch13.AttachmentOffset = App.Placement(Vector(0, 0, 15.5), App.Rotation())
sketch13.addGeometry(Part.Circle(Vector(15.5, -16.5, 0), Vector(0, 0, 1), 3), False)
sketch13.addConstraint([
    Sketcher.Constraint("Diameter", 0, Q("6 mm")),
    Sketcher.Constraint("DistanceX", -1, 1, 0, 3, Q("15.5 mm")),
    Sketcher.Constraint("DistanceY", 0, 3, -1, 1, Q("16.5 mm")),
])
sketch13.setExpression("Constraints[0]", "Params.sketch13_diameter")
pocket9 = doc.addObject("PartDesign::Pocket", "Pocket008")
body.addObject(pocket9)
pocket9.Profile = sketch13
pocket9.setExpression("Length", "Params.pocket9_length")
pocket9.Reversed = True

# Sketch on XZ plane
sketch14 = doc.addObject("Sketcher::SketchObject", "Sketch013")
body.addObject(sketch14)
sketch14.AttachmentSupport = (doc.XZ_Plane, [""])
sketch14.MapMode = "FlatFace"
sketch14.AttachmentOffset = App.Placement(Vector(0, 0, -20), App.Rotation())
sketch14.addGeometry([
    Part.LineSegment(Vector(-20, -6, 0), Vector(-20, 3, 0)),
    Part.LineSegment(Vector(-20, 3, 0), Vector(20, 3, 0)),
    Part.LineSegment(Vector(20, 3, 0), Vector(20, -6, 0)),
    Part.LineSegment(Vector(20, -6, 0), Vector(-20, -6, 0)),
], False)
sketch14.addConstraint([
    Sketcher.Constraint("Coincident", 0, 2, 1, 1),
    Sketcher.Constraint("Coincident", 1, 2, 2, 1),
    Sketcher.Constraint("Coincident", 2, 2, 3, 1),
    Sketcher.Constraint("Coincident", 3, 2, 0, 1),
    Sketcher.Constraint("Vertical", 0),
    Sketcher.Constraint("Horizontal", 1),
    Sketcher.Constraint("Vertical", 2),
    Sketcher.Constraint("Horizontal", 3),
    Sketcher.Constraint("DistanceX", 1, 1, 1, 2, Q("40 mm")),
    Sketcher.Constraint("DistanceY", 0, 1, 0, 2, Q("9 mm")),
    Sketcher.Constraint("DistanceX", 0, 2, -1, 1, Q("20 mm")),
    Sketcher.Constraint("DistanceY", -1, 1, 0, 2, Q("3 mm")),
])
sketch14.setExpression("Constraints[8]", "Params.sketch14_width")
sketch14.setExpression("Constraints[9]", "Params.sketch14_height")
pad5 = doc.addObject("PartDesign::Pad", "Pad004")
body.addObject(pad5)
pad5.Profile = sketch14
pad5.setExpression("Length", "Params.pad5_length")
pad5.Reversed = True

# Sketch on XY plane
sketch15 = doc.addObject("Sketcher::SketchObject", "Sketch014")
body.addObject(sketch15)
sketch15.AttachmentSupport = (doc.XY_Plane, [""])
sketch15.MapMode = "FlatFace"
sketch15.AttachmentOffset = App.Placement(Vector(0, 0, 3), App.Rotation())
sketch15.addGeometry([
    Part.LineSegment(Vector(-20, 22, 0), Vector(-20, 20, 0)),
    Part.LineSegment(Vector(-20, 20, 0), Vector(20, 20, 0)),
    Part.LineSegment(Vector(20, 20, 0), Vector(20, 22, 0)),
    Part.LineSegment(Vector(20, 22, 0), Vector(-20, 22, 0)),
], False)
sketch15.addConstraint([
    Sketcher.Constraint("Coincident", 0, 2, 1, 1),
    Sketcher.Constraint("Coincident", 1, 2, 2, 1),
    Sketcher.Constraint("Coincident", 2, 2, 3, 1),
    Sketcher.Constraint("Coincident", 3, 2, 0, 1),
    Sketcher.Constraint("Vertical", 0),
    Sketcher.Constraint("Horizontal", 1),
    Sketcher.Constraint("Vertical", 2),
    Sketcher.Constraint("Horizontal", 3),
    Sketcher.Constraint("DistanceX", 1, 1, 1, 2, Q("40 mm")),
    Sketcher.Constraint("DistanceY", 0, 2, 0, 1, Q("2 mm")),
    Sketcher.Constraint("DistanceX", 0, 2, -1, 1, Q("20 mm")),
    Sketcher.Constraint("DistanceY", -1, 1, 0, 2, Q("20 mm")),
])
sketch15.setExpression("Constraints[8]", "Params.sketch15_width")
sketch15.setExpression("Constraints[9]", "Params.sketch15_height")
pocket10 = doc.addObject("PartDesign::Pocket", "Pocket009")
body.addObject(pocket10)
pocket10.Profile = sketch15
pocket10.setExpression("Length", "Params.pocket10_length")

# Sketch on XY plane
sketch16 = doc.addObject("Sketcher::SketchObject", "Sketch015")
body.addObject(sketch16)
sketch16.AttachmentSupport = (doc.XY_Plane, [""])
sketch16.MapMode = "FlatFace"
sketch16.AttachmentOffset = App.Placement(Vector(0, 0, 3), App.Rotation())
sketch16.addGeometry([
    Part.LineSegment(Vector(-20, 27, 0), Vector(-20, 22, 0)),
    Part.LineSegment(Vector(-20, 22, 0), Vector(20, 22, 0)),
    Part.LineSegment(Vector(20, 22, 0), Vector(20, 27, 0)),
    Part.LineSegment(Vector(20, 27, 0), Vector(-20, 27, 0)),
], False)
sketch16.addConstraint([
    Sketcher.Constraint("Coincident", 0, 2, 1, 1),
    Sketcher.Constraint("Coincident", 1, 2, 2, 1),
    Sketcher.Constraint("Coincident", 2, 2, 3, 1),
    Sketcher.Constraint("Coincident", 3, 2, 0, 1),
    Sketcher.Constraint("Vertical", 0),
    Sketcher.Constraint("Horizontal", 1),
    Sketcher.Constraint("Vertical", 2),
    Sketcher.Constraint("Horizontal", 3),
    Sketcher.Constraint("DistanceX", 1, 1, 1, 2, Q("40 mm")),
    Sketcher.Constraint("DistanceY", 0, 2, 0, 1, Q("5 mm")),
    Sketcher.Constraint("DistanceX", 0, 2, -1, 1, Q("20 mm")),
    Sketcher.Constraint("DistanceY", -1, 1, 0, 2, Q("22 mm")),
])
sketch16.setExpression("Constraints[8]", "Params.sketch16_width")
sketch16.setExpression("Constraints[9]", "Params.sketch16_height")
pocket11 = doc.addObject("PartDesign::Pocket", "Pocket010")
body.addObject(pocket11)
pocket11.Profile = sketch16
pocket11.setExpression("Length", "Params.pocket11_length")
doc.recompute()

fillet3 = doc.addObject("PartDesign::Fillet", "Fillet002")
body.addObject(fillet3)
fillet3.Base = (pocket11, edges_at(pocket11, [(0, 27, 3), (0, 27, 0)]))
fillet3.setExpression("Radius", "Params.fillet3_radius")
doc.recompute()

fillet4 = doc.addObject("PartDesign::Fillet", "Fillet003")
body.addObject(fillet4)
fillet4.Base = (fillet3, edges_at(fillet3, [(20, 72.75, -1.5), (-20, 72.75, -1.5)]))
fillet4.setExpression("Radius", "Params.fillet4_radius")

# Sketch on XY plane
sketch17 = doc.addObject("Sketcher::SketchObject", "Sketch016")
body.addObject(sketch17)
sketch17.AttachmentSupport = (doc.XY_Plane, [""])
sketch17.MapMode = "FlatFace"
sketch17.AttachmentOffset = App.Placement(Vector(0, 0, -6), App.Rotation())
sketch17.addGeometry([
    Part.LineSegment(Vector(20, 41, 0), Vector(20, 32, 0)),  # 0
    Part.LineSegment(Vector(20, 32, 0), Vector(-20, 32, 0)),  # 1
    Part.LineSegment(Vector(-20, 32, 0), Vector(-20, 41, 0)),  # 2
    Part.LineSegment(Vector(-20, 41, 0), Vector(20, 41, 0)),  # 3
    Part.LineSegment(Vector(20, 54, 0), Vector(20, 45, 0)),  # 4
    Part.LineSegment(Vector(20, 45, 0), Vector(-20, 45, 0)),  # 5
    Part.LineSegment(Vector(-20, 45, 0), Vector(-20, 54, 0)),  # 6
    Part.LineSegment(Vector(-20, 54, 0), Vector(20, 54, 0)),  # 7
], False)
sketch17.addConstraint([
    Sketcher.Constraint("Coincident", 0, 2, 1, 1),
    Sketcher.Constraint("Coincident", 1, 2, 2, 1),
    Sketcher.Constraint("Coincident", 2, 2, 3, 1),
    Sketcher.Constraint("Coincident", 3, 2, 0, 1),
    Sketcher.Constraint("Coincident", 4, 2, 5, 1),
    Sketcher.Constraint("Coincident", 5, 2, 6, 1),
    Sketcher.Constraint("Coincident", 6, 2, 7, 1),
    Sketcher.Constraint("Coincident", 7, 2, 4, 1),
    Sketcher.Constraint("Vertical", 0),
    Sketcher.Constraint("Horizontal", 1),
    Sketcher.Constraint("Vertical", 2),
    Sketcher.Constraint("Horizontal", 3),
    Sketcher.Constraint("Vertical", 4),
    Sketcher.Constraint("Horizontal", 5),
    Sketcher.Constraint("Vertical", 6),
    Sketcher.Constraint("Horizontal", 7),
    Sketcher.Constraint("Vertical", 3, 2, 4, 2),
    Sketcher.Constraint("Vertical", 2, 2, 5, 2),
    Sketcher.Constraint("Equal", 2, 4),
    Sketcher.Constraint("DistanceX", 1, 2, 1, 1, Q("40 mm")),
    Sketcher.Constraint("DistanceX", -1, 1, 0, 2, Q("20 mm")),
    Sketcher.Constraint("DistanceY", -1, 1, 0, 2, Q("31.75 mm")),
    Sketcher.Constraint("DistanceY", 3, 2, 4, 2, Q("4.35 mm")),
    Sketcher.Constraint("DistanceY", 0, 2, 0, 1, Q("9.0424 mm")),
])
sketch17.setExpression("Constraints[19]", "Params.sketch17_width")
pocket12 = doc.addObject("PartDesign::Pocket", "Pocket011")
body.addObject(pocket12)
pocket12.Profile = sketch17
pocket12.setExpression("Length", "Params.pocket12_length")
pocket12.Reversed = True

# Sketch on XY plane
sketch18 = doc.addObject("Sketcher::SketchObject", "Sketch017")
body.addObject(sketch18)
sketch18.AttachmentSupport = (doc.XY_Plane, [""])
sketch18.MapMode = "FlatFace"
sketch18.addGeometry([
    Part.Circle(Vector(0, 49.7, 0), Vector(0, 0, 1), 2),
    Part.Circle(Vector(0, 36.3, 0), Vector(0, 0, 1), 2),
], False)
sketch18.addConstraint([
    Sketcher.Constraint("Equal", 0, 1),
    Sketcher.Constraint("PointOnObject", 0, 3, -2),
    Sketcher.Constraint("PointOnObject", 1, 3, -2),
    Sketcher.Constraint("Diameter", 0, Q("4 mm")),
    Sketcher.Constraint("DistanceY", -1, 1, 0, 3, Q("49.6636 mm")),
    Sketcher.Constraint("DistanceY", -1, 1, 1, 3, Q("36.2712 mm")),
])
sketch18.setExpression("Constraints[3]", "Params.sketch18_diameter")
pocket13 = doc.addObject("PartDesign::Pocket", "Pocket012")
body.addObject(pocket13)
pocket13.Profile = sketch18
pocket13.Type = "ThroughAll"
pocket13.Reversed = True

doc.recompute()
